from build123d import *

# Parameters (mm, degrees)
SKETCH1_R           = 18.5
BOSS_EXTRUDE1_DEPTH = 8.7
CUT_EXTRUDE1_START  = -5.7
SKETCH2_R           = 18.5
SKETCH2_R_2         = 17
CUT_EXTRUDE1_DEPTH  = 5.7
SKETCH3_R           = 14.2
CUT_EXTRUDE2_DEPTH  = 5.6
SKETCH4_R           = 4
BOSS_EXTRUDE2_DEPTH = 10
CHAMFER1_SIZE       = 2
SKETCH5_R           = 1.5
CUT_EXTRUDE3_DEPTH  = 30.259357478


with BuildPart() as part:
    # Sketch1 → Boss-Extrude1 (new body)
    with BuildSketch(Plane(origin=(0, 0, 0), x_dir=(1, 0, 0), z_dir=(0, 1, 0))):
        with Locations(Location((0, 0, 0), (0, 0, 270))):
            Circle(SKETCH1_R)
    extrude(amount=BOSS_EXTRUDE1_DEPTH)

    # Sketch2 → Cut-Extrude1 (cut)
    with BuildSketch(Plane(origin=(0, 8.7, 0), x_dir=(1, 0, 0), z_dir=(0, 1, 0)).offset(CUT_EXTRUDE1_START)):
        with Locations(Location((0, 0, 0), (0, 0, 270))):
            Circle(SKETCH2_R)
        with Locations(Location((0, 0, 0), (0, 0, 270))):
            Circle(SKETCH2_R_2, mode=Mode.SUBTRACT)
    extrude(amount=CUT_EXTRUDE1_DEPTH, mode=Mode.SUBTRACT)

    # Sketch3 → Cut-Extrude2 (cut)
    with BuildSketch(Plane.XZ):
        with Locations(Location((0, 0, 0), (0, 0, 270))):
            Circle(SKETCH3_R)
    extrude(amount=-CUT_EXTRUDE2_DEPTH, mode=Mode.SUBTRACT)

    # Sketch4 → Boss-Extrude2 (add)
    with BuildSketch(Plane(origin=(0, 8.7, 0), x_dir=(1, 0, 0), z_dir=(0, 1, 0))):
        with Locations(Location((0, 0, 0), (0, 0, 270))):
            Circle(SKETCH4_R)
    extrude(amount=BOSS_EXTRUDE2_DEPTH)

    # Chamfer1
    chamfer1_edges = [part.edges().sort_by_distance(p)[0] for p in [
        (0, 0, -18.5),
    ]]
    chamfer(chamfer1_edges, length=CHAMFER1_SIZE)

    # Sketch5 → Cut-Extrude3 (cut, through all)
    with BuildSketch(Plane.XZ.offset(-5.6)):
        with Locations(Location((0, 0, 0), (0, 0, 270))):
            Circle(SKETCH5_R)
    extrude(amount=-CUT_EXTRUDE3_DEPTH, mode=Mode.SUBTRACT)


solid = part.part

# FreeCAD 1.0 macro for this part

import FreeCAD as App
import Part
import Sketcher
from FreeCAD import Vector


def edges_at(feature, points):
    """Names of the edges that pass closest to the given points."""
    edges = feature.Shape.Edges
    near = lambda p: min(range(len(edges)), key=lambda i: edges[i].distToShape(Part.Vertex(*p))[0])
    return sorted({f"Edge{near(p) + 1}" for p in points})

doc = App.newDocument("Part")
params = doc.addObject("Spreadsheet::Sheet", "Params")
for row, (alias, value) in enumerate([
    ("sketch1_diameter", "37 mm"),
    ("pad1_length", "8.7 mm"),
    ("sketch2_diameter", "37 mm"),
    ("sketch2_diameter2", "34 mm"),
    ("pocket1_length", "5.7 mm"),
    ("sketch3_diameter", "28.4 mm"),
    ("pocket2_length", "5.6 mm"),
    ("sketch4_diameter", "8 mm"),
    ("pad2_length", "10 mm"),
    ("chamfer_size", "2 mm"),
    ("sketch5_diameter", "3 mm"),
], start=1):
    params.set(f"A{row}", alias)
    params.set(f"B{row}", "=" + value)
    params.setAlias(f"B{row}", alias)

body = doc.addObject("PartDesign::Body", "Body")

# Sketch on XZ plane
sketch1 = body.newObject("Sketcher::SketchObject", "Sketch")
sketch1.AttachmentSupport = (doc.getObject("XZ_Plane"), [""])
sketch1.MapMode = "FlatFace"
sketch1.addGeometry(Part.Circle(Vector(0, 0, 0), Vector(0, 0, 1), 18), False)
sketch1.addConstraint([
    Sketcher.Constraint("Coincident", 0, 3, -1, 1),
    Sketcher.Constraint("Diameter", 0, 37.0),
])
sketch1.setExpression("Constraints[1]", "Params.sketch1_diameter")
pad1 = body.newObject("PartDesign::Pad", "Pad")
pad1.Profile = sketch1
pad1.setExpression("Length", "Params.pad1_length")
pad1.Reversed = True

# Sketch on XZ plane
sketch2 = body.newObject("Sketcher::SketchObject", "Sketch001")
sketch2.AttachmentSupport = (doc.getObject("XZ_Plane"), [""])
sketch2.MapMode = "FlatFace"
sketch2.AttachmentOffset = App.Placement(Vector(0, 0, -3), App.Rotation())
sketch2.addGeometry([
    Part.Circle(Vector(0, 0, 0), Vector(0, 0, 1), 18),
    Part.Circle(Vector(0, 0, 0), Vector(0, 0, 1), 17),
], False)
sketch2.addConstraint([
    Sketcher.Constraint("Coincident", 0, 3, -1, 1),
    Sketcher.Constraint("Coincident", 1, 3, -1, 1),
    Sketcher.Constraint("Diameter", 0, 37.0),
    Sketcher.Constraint("Diameter", 1, 34.0),
])
sketch2.setExpression("Constraints[2]", "Params.sketch2_diameter")
sketch2.setExpression("Constraints[3]", "Params.sketch2_diameter2")
pocket1 = body.newObject("PartDesign::Pocket", "Pocket")
pocket1.Profile = sketch2
pocket1.setExpression("Length", "Params.pocket1_length")

# Sketch on XZ plane
sketch3 = body.newObject("Sketcher::SketchObject", "Sketch002")
sketch3.AttachmentSupport = (doc.getObject("XZ_Plane"), [""])
sketch3.MapMode = "FlatFace"
sketch3.addGeometry(Part.Circle(Vector(0, 0, 0), Vector(0, 0, 1), 14), False)
sketch3.addConstraint([
    Sketcher.Constraint("Coincident", 0, 3, -1, 1),
    Sketcher.Constraint("Diameter", 0, 28.4),
])
sketch3.setExpression("Constraints[1]", "Params.sketch3_diameter")
pocket2 = body.newObject("PartDesign::Pocket", "Pocket001")
pocket2.Profile = sketch3
pocket2.setExpression("Length", "Params.pocket2_length")

# Sketch on XZ plane
sketch4 = body.newObject("Sketcher::SketchObject", "Sketch003")
sketch4.AttachmentSupport = (doc.getObject("XZ_Plane"), [""])
sketch4.MapMode = "FlatFace"
sketch4.AttachmentOffset = App.Placement(Vector(0, 0, -8.7), App.Rotation())
sketch4.addGeometry(Part.Circle(Vector(0, 0, 0), Vector(0, 0, 1), 4), False)
sketch4.addConstraint([
    Sketcher.Constraint("Coincident", 0, 3, -1, 1),
    Sketcher.Constraint("Diameter", 0, 8.0),
])
sketch4.setExpression("Constraints[1]", "Params.sketch4_diameter")
pad2 = body.newObject("PartDesign::Pad", "Pad001")
pad2.Profile = sketch4
pad2.setExpression("Length", "Params.pad2_length")
pad2.Reversed = True
doc.recompute()

chamfer = body.newObject("PartDesign::Chamfer", "Chamfer")
chamfer.Base = (pad2, edges_at(pad2, [(0, 0, -18.5)]))
chamfer.setExpression("Size", "Params.chamfer_size")

# Sketch on XZ plane
sketch5 = body.newObject("Sketcher::SketchObject", "Sketch004")
sketch5.AttachmentSupport = (doc.getObject("XZ_Plane"), [""])
sketch5.MapMode = "FlatFace"
sketch5.AttachmentOffset = App.Placement(Vector(0, 0, -5.6), App.Rotation())
sketch5.addGeometry(Part.Circle(Vector(0, 0, 0), Vector(0, 0, 1), 1.5), False)
sketch5.addConstraint([
    Sketcher.Constraint("Coincident", 0, 3, -1, 1),
    Sketcher.Constraint("Diameter", 0, 3.0),
])
sketch5.setExpression("Constraints[1]", "Params.sketch5_diameter")
pocket3 = body.newObject("PartDesign::Pocket", "Pocket002")
pocket3.Profile = sketch5
pocket3.Type = "ThroughAll"

doc.recompute()
